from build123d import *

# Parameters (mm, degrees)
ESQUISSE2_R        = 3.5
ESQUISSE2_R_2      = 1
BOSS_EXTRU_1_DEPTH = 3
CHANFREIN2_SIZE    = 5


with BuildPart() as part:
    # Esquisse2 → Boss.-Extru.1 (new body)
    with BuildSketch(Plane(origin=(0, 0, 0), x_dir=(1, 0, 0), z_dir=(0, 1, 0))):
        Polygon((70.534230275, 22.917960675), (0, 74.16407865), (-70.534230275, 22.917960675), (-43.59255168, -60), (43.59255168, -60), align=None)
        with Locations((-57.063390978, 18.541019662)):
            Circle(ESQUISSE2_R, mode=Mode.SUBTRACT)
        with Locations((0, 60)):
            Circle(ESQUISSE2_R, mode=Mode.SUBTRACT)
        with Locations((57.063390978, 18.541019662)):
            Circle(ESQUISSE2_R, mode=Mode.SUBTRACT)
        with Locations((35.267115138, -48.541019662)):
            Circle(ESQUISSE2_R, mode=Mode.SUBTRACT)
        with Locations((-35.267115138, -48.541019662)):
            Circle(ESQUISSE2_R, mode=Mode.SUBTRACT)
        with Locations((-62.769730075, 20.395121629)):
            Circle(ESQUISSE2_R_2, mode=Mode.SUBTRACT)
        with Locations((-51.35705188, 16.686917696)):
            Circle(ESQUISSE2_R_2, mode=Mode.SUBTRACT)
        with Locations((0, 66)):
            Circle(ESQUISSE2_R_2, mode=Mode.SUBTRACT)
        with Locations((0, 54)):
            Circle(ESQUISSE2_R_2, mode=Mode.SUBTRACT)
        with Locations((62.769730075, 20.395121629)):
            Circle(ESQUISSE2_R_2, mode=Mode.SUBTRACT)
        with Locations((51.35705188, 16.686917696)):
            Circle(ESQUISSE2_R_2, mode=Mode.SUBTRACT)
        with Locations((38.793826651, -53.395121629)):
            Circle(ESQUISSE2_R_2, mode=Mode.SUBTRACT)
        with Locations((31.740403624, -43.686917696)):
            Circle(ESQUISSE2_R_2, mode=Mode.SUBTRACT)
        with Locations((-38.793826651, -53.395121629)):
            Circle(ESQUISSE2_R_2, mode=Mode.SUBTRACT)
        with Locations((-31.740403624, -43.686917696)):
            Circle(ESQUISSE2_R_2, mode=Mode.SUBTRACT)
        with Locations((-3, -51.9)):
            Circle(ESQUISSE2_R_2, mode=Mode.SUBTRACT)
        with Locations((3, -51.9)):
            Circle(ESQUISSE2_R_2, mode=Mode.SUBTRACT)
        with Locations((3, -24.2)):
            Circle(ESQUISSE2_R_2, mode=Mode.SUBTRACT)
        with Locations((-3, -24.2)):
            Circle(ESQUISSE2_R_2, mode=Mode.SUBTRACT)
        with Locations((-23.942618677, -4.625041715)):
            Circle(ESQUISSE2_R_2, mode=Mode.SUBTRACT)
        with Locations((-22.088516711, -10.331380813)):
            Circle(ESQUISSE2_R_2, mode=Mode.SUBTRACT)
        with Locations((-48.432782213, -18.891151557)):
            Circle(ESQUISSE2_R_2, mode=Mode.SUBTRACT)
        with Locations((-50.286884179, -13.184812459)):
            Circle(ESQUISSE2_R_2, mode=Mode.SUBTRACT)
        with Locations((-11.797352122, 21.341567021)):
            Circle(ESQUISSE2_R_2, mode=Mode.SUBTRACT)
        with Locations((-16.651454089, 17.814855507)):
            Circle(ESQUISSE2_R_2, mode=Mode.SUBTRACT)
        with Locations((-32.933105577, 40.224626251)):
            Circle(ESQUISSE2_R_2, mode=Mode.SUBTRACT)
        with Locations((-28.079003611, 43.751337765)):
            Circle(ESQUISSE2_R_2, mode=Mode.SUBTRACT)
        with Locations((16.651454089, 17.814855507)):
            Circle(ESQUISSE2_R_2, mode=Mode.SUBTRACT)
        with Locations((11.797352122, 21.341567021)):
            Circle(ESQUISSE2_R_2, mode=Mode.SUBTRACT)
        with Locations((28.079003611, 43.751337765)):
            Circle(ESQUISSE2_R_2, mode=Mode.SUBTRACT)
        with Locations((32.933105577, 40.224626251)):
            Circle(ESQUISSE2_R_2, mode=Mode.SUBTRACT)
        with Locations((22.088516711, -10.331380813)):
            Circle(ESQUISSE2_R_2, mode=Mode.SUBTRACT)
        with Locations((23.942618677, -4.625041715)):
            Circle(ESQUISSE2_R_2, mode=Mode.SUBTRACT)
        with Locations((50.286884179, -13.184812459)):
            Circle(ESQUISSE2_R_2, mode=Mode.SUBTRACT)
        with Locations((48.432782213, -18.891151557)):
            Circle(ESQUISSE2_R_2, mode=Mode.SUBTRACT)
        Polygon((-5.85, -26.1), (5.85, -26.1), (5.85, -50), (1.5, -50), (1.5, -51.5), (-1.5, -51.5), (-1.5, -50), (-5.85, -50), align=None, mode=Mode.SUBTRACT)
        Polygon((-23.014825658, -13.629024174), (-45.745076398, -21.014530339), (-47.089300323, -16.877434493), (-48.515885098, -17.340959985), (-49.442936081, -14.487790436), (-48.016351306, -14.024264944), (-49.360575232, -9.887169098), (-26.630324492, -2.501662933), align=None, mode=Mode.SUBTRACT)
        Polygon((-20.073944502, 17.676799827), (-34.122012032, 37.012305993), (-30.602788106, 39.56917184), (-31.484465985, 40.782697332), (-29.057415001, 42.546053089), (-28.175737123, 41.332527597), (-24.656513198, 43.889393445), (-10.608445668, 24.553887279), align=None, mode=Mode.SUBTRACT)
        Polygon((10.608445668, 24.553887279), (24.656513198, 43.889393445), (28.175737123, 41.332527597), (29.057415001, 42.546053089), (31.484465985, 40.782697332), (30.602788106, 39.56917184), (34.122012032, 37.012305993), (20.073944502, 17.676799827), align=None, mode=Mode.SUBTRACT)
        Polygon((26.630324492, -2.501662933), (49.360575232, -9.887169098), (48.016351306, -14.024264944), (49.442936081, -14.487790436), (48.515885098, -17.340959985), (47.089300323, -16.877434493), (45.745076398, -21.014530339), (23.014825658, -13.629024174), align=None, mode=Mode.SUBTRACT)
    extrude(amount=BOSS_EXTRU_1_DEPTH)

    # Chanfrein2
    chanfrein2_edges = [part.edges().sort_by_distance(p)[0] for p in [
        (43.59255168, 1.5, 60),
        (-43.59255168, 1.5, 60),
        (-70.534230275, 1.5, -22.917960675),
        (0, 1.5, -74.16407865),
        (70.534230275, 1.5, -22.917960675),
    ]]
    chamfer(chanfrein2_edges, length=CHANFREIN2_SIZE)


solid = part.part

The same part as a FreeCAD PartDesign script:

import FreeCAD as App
import Part
import Sketcher

V = App.Vector
Q = App.Units.Quantity


def edges_at(feature, points):
    """Names of the edges that pass closest to the given points."""
    edges = feature.Shape.Edges
    near = lambda p: min(range(len(edges)), key=lambda i: edges[i].distToShape(Part.Vertex(*p))[0])
    return sorted({f"Edge{near(p) + 1}" for p in points})


def add_polygon(sketch, points):
    """Adds a closed chain of lines whose ends are joined by coincident constraints."""
    first, n = sketch.GeometryCount, len(points)
    for a, b in zip(points, points[1:] + points[:1]):
        sketch.addGeometry(Part.LineSegment(App.Vector(*a, 0), App.Vector(*b, 0)), False)
    for i in range(n):
        sketch.addConstraint(Sketcher.Constraint("Coincident", first + i, 2, first + (i + 1) % n, 1))

doc = App.newDocument("Part")
body = doc.addObject("PartDesign::Body", "Body")

# Sketch on XZ plane
sketch1 = doc.addObject("Sketcher::SketchObject", "Sketch")
body.addObject(sketch1)
sketch1.AttachmentSupport = (doc.XZ_Plane, [""])
sketch1.MapMode = "FlatFace"
add_polygon(sketch1, [(70.53423, -22.917961), (0, -74.164079), (-70.53423, -22.917961), (-43.592552, 60), (43.592552, 60)])  # lines 0-4
sketch1.addGeometry(Part.Circle(V(-38.793827, 53.395122, 0), V(0, 0, 1), 1), False)  # 5
sketch1.addGeometry(Part.Circle(V(-35.267115, 48.54102, 0), V(0, 0, 1), 3.5), False)  # 6
sketch1.addGeometry(Part.Circle(V(-31.740404, 43.686918, 0), V(0, 0, 1), 1), False)  # 7
sketch1.addGeometry(Part.Circle(V(-3, 51.9, 0), V(0, 0, 1), 1), False)  # 8
sketch1.addGeometry(Part.Circle(V(-3, 24.2, 0), V(0, 0, 1), 1), False)  # 9
sketch1.addGeometry(Part.Circle(V(-48.432782, 18.891152, 0), V(0, 0, 1), 1), False)  # 10
sketch1.addGeometry(Part.Circle(V(-50.286884, 13.184812, 0), V(0, 0, 1), 1), False)  # 11
add_polygon(sketch1, [(-26.630324, 2.501663), (-23.014826, 13.629024), (-45.745076, 21.01453), (-47.0893, 16.877434), (-48.515885, 17.34096), (-49.442936, 14.48779), (-48.016351, 14.024265), (-49.360575, 9.887169)])  # lines 12-19
sketch1.addGeometry(Part.Circle(V(-22.088517, 10.331381, 0), V(0, 0, 1), 1), False)  # 20
sketch1.addGeometry(Part.Circle(V(-23.942619, 4.625042, 0), V(0, 0, 1), 1), False)  # 21
sketch1.addGeometry(Part.Circle(V(3, 51.9, 0), V(0, 0, 1), 1), False)  # 22
sketch1.addGeometry(Part.Circle(V(31.740404, 43.686918, 0), V(0, 0, 1), 1), False)  # 23
add_polygon(sketch1, [(-5.85, 50), (-5.85, 26.1), (5.85, 26.1), (5.85, 50), (1.5, 50), (1.5, 51.5), (-1.5, 51.5), (-1.5, 50)])  # lines 24-31
sketch1.addGeometry(Part.Circle(V(3, 24.2, 0), V(0, 0, 1), 1), False)  # 32
sketch1.addGeometry(Part.Circle(V(38.793827, 53.395122, 0), V(0, 0, 1), 1), False)  # 33
sketch1.addGeometry(Part.Circle(V(35.267115, 48.54102, 0), V(0, 0, 1), 3.5), False)  # 34
sketch1.addGeometry(Part.Circle(V(22.088517, 10.331381, 0), V(0, 0, 1), 1), False)  # 35
sketch1.addGeometry(Part.Circle(V(23.942619, 4.625042, 0), V(0, 0, 1), 1), False)  # 36
add_polygon(sketch1, [(23.014826, 13.629024), (26.630324, 2.501663), (49.360575, 9.887169), (48.016351, 14.024265), (49.442936, 14.48779), (48.515885, 17.34096), (47.0893, 16.877434), (45.745076, 21.01453)])  # lines 37-44
sketch1.addGeometry(Part.Circle(V(48.432782, 18.891152, 0), V(0, 0, 1), 1), False)  # 45
sketch1.addGeometry(Part.Circle(V(50.286884, 13.184812, 0), V(0, 0, 1), 1), False)  # 46
sketch1.addGeometry(Part.Circle(V(-62.76973, -20.395122, 0), V(0, 0, 1), 1), False)  # 47
sketch1.addGeometry(Part.Circle(V(-57.063391, -18.54102, 0), V(0, 0, 1), 3.5), False)  # 48
sketch1.addGeometry(Part.Circle(V(-51.357052, -16.686918, 0), V(0, 0, 1), 1), False)  # 49
sketch1.addGeometry(Part.Circle(V(-16.651454, -17.814856, 0), V(0, 0, 1), 1), False)  # 50
sketch1.addGeometry(Part.Circle(V(-11.797352, -21.341567, 0), V(0, 0, 1), 1), False)  # 51
add_polygon(sketch1, [(-10.608446, -24.553887), (-20.073945, -17.6768), (-34.122012, -37.012306), (-30.602788, -39.569172), (-31.484466, -40.782697), (-29.057415, -42.546053), (-28.175737, -41.332528), (-24.656513, -43.889393)])  # lines 52-59
sketch1.addGeometry(Part.Circle(V(-32.933106, -40.224626, 0), V(0, 0, 1), 1), False)  # 60
sketch1.addGeometry(Part.Circle(V(-28.079004, -43.751338, 0), V(0, 0, 1), 1), False)  # 61
sketch1.addGeometry(Part.Circle(V(11.797352, -21.341567, 0), V(0, 0, 1), 1), False)  # 62
sketch1.addGeometry(Part.Circle(V(16.651454, -17.814856, 0), V(0, 0, 1), 1), False)  # 63
add_polygon(sketch1, [(20.073945, -17.6768), (10.608446, -24.553887), (24.656513, -43.889393), (28.175737, -41.332528), (29.057415, -42.546053), (31.484466, -40.782697), (30.602788, -39.569172), (34.122012, -37.012306)])  # lines 64-71
sketch1.addGeometry(Part.Circle(V(51.357052, -16.686918, 0), V(0, 0, 1), 1), False)  # 72
sketch1.addGeometry(Part.Circle(V(57.063391, -18.54102, 0), V(0, 0, 1), 3.5), False)  # 73
sketch1.addGeometry(Part.Circle(V(62.76973, -20.395122, 0), V(0, 0, 1), 1), False)  # 74
sketch1.addGeometry(Part.Circle(V(28.079004, -43.751338, 0), V(0, 0, 1), 1), False)  # 75
sketch1.addGeometry(Part.Circle(V(0, -54, 0), V(0, 0, 1), 1), False)  # 76
sketch1.addGeometry(Part.Circle(V(0, -60, 0), V(0, 0, 1), 3.5), False)  # 77
sketch1.addGeometry(Part.Circle(V(0, -66, 0), V(0, 0, 1), 1), False)  # 78
sketch1.addGeometry(Part.Circle(V(32.933106, -40.224626, 0), V(0, 0, 1), 1), False)  # 79
sketch1.addConstraint([
    Sketcher.Constraint("Horizontal", 3),
    Sketcher.Constraint("Vertical", 24),
    Sketcher.Constraint("Horizontal", 25),
    Sketcher.Constraint("Vertical", 26),
    Sketcher.Constraint("Horizontal", 27),
    Sketcher.Constraint("Vertical", 28),
    Sketcher.Constraint("Horizontal", 29),
    Sketcher.Constraint("Vertical", 30),
    Sketcher.Constraint("Horizontal", 31),
    Sketcher.Constraint("Equal", 5, 7),
    Sketcher.Constraint("Equal", 7, 8),
    Sketcher.Constraint("Equal", 8, 9),
    Sketcher.Constraint("Equal", 9, 10),
    Sketcher.Constraint("Equal", 10, 11),
    Sketcher.Constraint("Equal", 11, 20),
    Sketcher.Constraint("Equal", 20, 21),
    Sketcher.Constraint("Equal", 21, 22),
    Sketcher.Constraint("Equal", 22, 23),
    Sketcher.Constraint("Equal", 23, 32),
    Sketcher.Constraint("Equal", 32, 33),
    Sketcher.Constraint("Equal", 6, 34),
    Sketcher.Constraint("Equal", 33, 35),
    Sketcher.Constraint("Equal", 35, 36),
    Sketcher.Constraint("Equal", 36, 45),
    Sketcher.Constraint("Equal", 45, 46),
    Sketcher.Constraint("Equal", 46, 47),
    Sketcher.Constraint("Equal", 34, 48),
    Sketcher.Constraint("Equal", 47, 49),
    Sketcher.Constraint("Equal", 49, 50),
    Sketcher.Constraint("Equal", 50, 51),
    Sketcher.Constraint("Equal", 51, 60),
    Sketcher.Constraint("Equal", 60, 61),
    Sketcher.Constraint("Equal", 61, 62),
    Sketcher.Constraint("Equal", 62, 63),
    Sketcher.Constraint("Equal", 63, 72),
    Sketcher.Constraint("Equal", 48, 73),
    Sketcher.Constraint("Equal", 72, 74),
    Sketcher.Constraint("Equal", 74, 75),
    Sketcher.Constraint("Equal", 75, 76),
    Sketcher.Constraint("Equal", 73, 77),
    Sketcher.Constraint("Equal", 76, 78),
    Sketcher.Constraint("Equal", 78, 79),
    Sketcher.Constraint("Symmetric", 8, 3, 22, 3, -2),
    Sketcher.Constraint("Symmetric", 7, 3, 23, 3, -2),
    Sketcher.Constraint("Symmetric", 9, 3, 32, 3, -2),
    Sketcher.Constraint("Symmetric", 5, 3, 33, 3, -2),
    Sketcher.Constraint("Symmetric", 6, 3, 34, 3, -2),
    Sketcher.Constraint("Symmetric", 20, 3, 35, 3, -2),
    Sketcher.Constraint("Symmetric", 21, 3, 36, 3, -2),
    Sketcher.Constraint("Symmetric", 10, 3, 45, 3, -2),
    Sketcher.Constraint("Symmetric", 11, 3, 46, 3, -2),
    Sketcher.Constraint("Symmetric", 51, 3, 62, 3, -2),
    Sketcher.Constraint("Symmetric", 50, 3, 63, 3, -2),
    Sketcher.Constraint("Symmetric", 49, 3, 72, 3, -2),
    Sketcher.Constraint("Symmetric", 48, 3, 73, 3, -2),
    Sketcher.Constraint("Symmetric", 47, 3, 74, 3, -2),
    Sketcher.Constraint("Symmetric", 61, 3, 75, 3, -2),
    Sketcher.Constraint("Symmetric", 60, 3, 79, 3, -2),
    Sketcher.Constraint("Symmetric", 1, 2, 4, 2, -2),
    Sketcher.Constraint("Symmetric", 27, 2, 30, 2, -2),
    Sketcher.Constraint("Symmetric", 19, 2, 37, 2, -2),
    Sketcher.Constraint("Symmetric", 18, 2, 38, 2, -2),
    Sketcher.Constraint("Symmetric", 17, 2, 39, 2, -2),
    Sketcher.Constraint("Symmetric", 16, 2, 40, 2, -2),
    Sketcher.Constraint("Symmetric", 15, 2, 41, 2, -2),
    Sketcher.Constraint("Symmetric", 14, 2, 42, 2, -2),
    Sketcher.Constraint("Symmetric", 13, 2, 43, 2, -2),
    Sketcher.Constraint("Symmetric", 12, 2, 44, 2, -2),
    Sketcher.Constraint("Symmetric", 59, 2, 64, 2, -2),
    Sketcher.Constraint("Symmetric", 58, 2, 65, 2, -2),
    Sketcher.Constraint("Symmetric", 57, 2, 66, 2, -2),
    Sketcher.Constraint("Symmetric", 56, 2, 67, 2, -2),
    Sketcher.Constraint("Symmetric", 55, 2, 68, 2, -2),
    Sketcher.Constraint("Symmetric", 54, 2, 69, 2, -2),
    Sketcher.Constraint("Symmetric", 53, 2, 70, 2, -2),
    Sketcher.Constraint("Symmetric", 52, 2, 71, 2, -2),
    Sketcher.Constraint("PointOnObject", 76, 3, -2),
    Sketcher.Constraint("PointOnObject", 77, 3, -2),
    Sketcher.Constraint("PointOnObject", 78, 3, -2),
    Sketcher.Constraint("PointOnObject", 0, 2, -2),
    Sketcher.Constraint("Parallel", 2, 12),
    Sketcher.Constraint("Perpendicular", 12, 13),
    Sketcher.Constraint("Perpendicular", 13, 14),
    Sketcher.Constraint("Perpendicular", 14, 15),
    Sketcher.Constraint("Perpendicular", 15, 16),
    Sketcher.Constraint("Perpendicular", 16, 17),
    Sketcher.Constraint("Perpendicular", 17, 18),
    Sketcher.Constraint("Perpendicular", 18, 19),
    Sketcher.Constraint("Parallel", 4, 37),
    Sketcher.Constraint("Parallel", 1, 52),
    Sketcher.Constraint("Perpendicular", 52, 53),
    Sketcher.Constraint("Perpendicular", 53, 54),
    Sketcher.Constraint("Perpendicular", 54, 55),
    Sketcher.Constraint("Perpendicular", 55, 56),
    Sketcher.Constraint("Perpendicular", 56, 57),
    Sketcher.Constraint("Perpendicular", 57, 58),
    Sketcher.Constraint("Perpendicular", 58, 59),
    Sketcher.Constraint("Vertical", 8, 3, 9, 3),
    Sketcher.Constraint("Equal", 27, 31),
    Sketcher.Constraint("Equal", 1, 2),
    Sketcher.Constraint("Equal", 15, 17),
    Sketcher.Constraint("Equal", 14, 18),
    Sketcher.Constraint("Equal", 37, 52),
    Sketcher.Constraint("Equal", 44, 53),
    Sketcher.Constraint("Equal", 43, 54),
    Sketcher.Constraint("Equal", 42, 55),
    Sketcher.Constraint("Equal", 41, 56),
    Sketcher.Constraint("Equal", 55, 57),
    Sketcher.Constraint("Diameter", 5, Q("2 mm")),
    Sketcher.Constraint("Diameter", 6, Q("7 mm")),
    Sketcher.Constraint("DistanceX", 29, 2, 29, 1, Q("3 mm")),
    Sketcher.Constraint("Angle", 0, Q("-144 deg")),
    Sketcher.Constraint("Angle", 2, Q("72 deg")),
    Sketcher.Constraint("Distance", 16, Q("3 mm")),
    Sketcher.Constraint("DistanceX", 25, 1, 25, 2, Q("11.7 mm")),
    Sketcher.Constraint("DistanceY", 24, 2, 24, 1, Q("23.9 mm")),
    Sketcher.Constraint("DistanceY", 28, 1, 28, 2, Q("1.5 mm")),
    Sketcher.Constraint("DistanceX", 8, 3, -1, 1, Q("3 mm")),
    Sketcher.Constraint("DistanceY", 76, 3, -1, 1, Q("54 mm")),
    Sketcher.Constraint("DistanceY", 77, 3, -1, 1, Q("60 mm")),
    Sketcher.Constraint("DistanceY", 78, 3, -1, 1, Q("66 mm")),
    Sketcher.Constraint("DistanceY", -1, 1, 2, 2, Q("60 mm")),
    Sketcher.Constraint("DistanceY", -1, 1, 26, 2, Q("50 mm")),
    Sketcher.Constraint("Distance", 12, Q("11.7 mm")),
    Sketcher.Constraint("Distance", 13, Q("23.9 mm")),
    Sketcher.Constraint("Distance", 15, Q("1.5 mm")),
    Sketcher.Constraint("DistanceY", -1, 1, 8, 3, Q("51.9 mm")),
    Sketcher.Constraint("DistanceY", -1, 1, 9, 3, Q("24.2 mm")),
    Sketcher.Constraint("DistanceX", 14, 2, -1, 1, Q("47.0893 mm")),
    Sketcher.Constraint("DistanceY", 52, 2, -1, 1, Q("17.6768 mm")),
    Sketcher.Constraint("DistanceX", 3, 1, 3, 2, Q("87.185103 mm")),
    Sketcher.Constraint("DistanceY", -1, 1, 5, 3, Q("53.395122 mm")),
    Sketcher.Constraint("DistanceY", -1, 1, 6, 3, Q("48.54102 mm")),
    Sketcher.Constraint("DistanceY", -1, 1, 10, 3, Q("18.891152 mm")),
    Sketcher.Constraint("DistanceY", -1, 1, 20, 3, Q("10.331381 mm")),
    Sketcher.Constraint("DistanceX", 21, 3, -1, 1, Q("23.942619 mm")),
    Sketcher.Constraint("DistanceY", -1, 1, 21, 3, Q("4.625042 mm")),
    Sketcher.Constraint("DistanceX", 47, 3, -1, 1, Q("62.76973 mm")),
    Sketcher.Constraint("DistanceY", 47, 3, -1, 1, Q("20.395122 mm")),
    Sketcher.Constraint("DistanceX", 48, 3, -1, 1, Q("57.063391 mm")),
    Sketcher.Constraint("DistanceY", 48, 3, -1, 1, Q("18.54102 mm")),
    Sketcher.Constraint("DistanceX", 49, 3, -1, 1, Q("51.357052 mm")),
    Sketcher.Constraint("DistanceY", -1, 1, 13, 2, Q("21.01453 mm")),
    Sketcher.Constraint("DistanceX", 54, 2, -1, 1, Q("30.602788 mm")),
    Sketcher.Constraint("DistanceX", 5, 3, -1, 1, Q("38.793827 mm")),
    Sketcher.Constraint("DistanceX", 6, 3, -1, 1, Q("35.267115 mm")),
    Sketcher.Constraint("DistanceX", 7, 3, -1, 1, Q("31.740404 mm")),
    Sketcher.Constraint("DistanceY", -1, 1, 7, 3, Q("43.686918 mm")),
    Sketcher.Constraint("DistanceX", 10, 3, -1, 1, Q("48.432782 mm")),
    Sketcher.Constraint("DistanceX", 11, 3, -1, 1, Q("50.286884 mm")),
    Sketcher.Constraint("DistanceY", -1, 1, 11, 3, Q("13.184812 mm")),
    Sketcher.Constraint("DistanceX", 20, 3, -1, 1, Q("22.088517 mm")),
    Sketcher.Constraint("DistanceY", 49, 3, -1, 1, Q("16.686918 mm")),
    Sketcher.Constraint("DistanceX", 50, 3, -1, 1, Q("16.651454 mm")),
    Sketcher.Constraint("DistanceY", 50, 3, -1, 1, Q("17.814856 mm")),
    Sketcher.Constraint("DistanceX", 51, 3, -1, 1, Q("11.797352 mm")),
    Sketcher.Constraint("DistanceY", 51, 3, -1, 1, Q("21.341567 mm")),
    Sketcher.Constraint("DistanceX", 60, 3, -1, 1, Q("32.933106 mm")),
    Sketcher.Constraint("DistanceY", 60, 3, -1, 1, Q("40.224626 mm")),
    Sketcher.Constraint("DistanceX", 61, 3, -1, 1, Q("28.079004 mm")),
    Sketcher.Constraint("DistanceY", 61, 3, -1, 1, Q("43.751338 mm")),
])
pad1 = doc.addObject("PartDesign::Pad", "Pad")
body.addObject(pad1)
pad1.Profile = sketch1
pad1.Length = 3
pad1.Reversed = True
doc.recompute()

chamfer = doc.addObject("PartDesign::Chamfer", "Chamfer")
body.addObject(chamfer)
chamfer.Base = (pad1, edges_at(pad1, [
    (43.593, 1.5, 60),
    (-43.593, 1.5, 60),
    (-70.534, 1.5, -22.918),
    (0, 1.5, -74.164),
    (70.534, 1.5, -22.918),
]))
chamfer.Size = 5

doc.recompute()
